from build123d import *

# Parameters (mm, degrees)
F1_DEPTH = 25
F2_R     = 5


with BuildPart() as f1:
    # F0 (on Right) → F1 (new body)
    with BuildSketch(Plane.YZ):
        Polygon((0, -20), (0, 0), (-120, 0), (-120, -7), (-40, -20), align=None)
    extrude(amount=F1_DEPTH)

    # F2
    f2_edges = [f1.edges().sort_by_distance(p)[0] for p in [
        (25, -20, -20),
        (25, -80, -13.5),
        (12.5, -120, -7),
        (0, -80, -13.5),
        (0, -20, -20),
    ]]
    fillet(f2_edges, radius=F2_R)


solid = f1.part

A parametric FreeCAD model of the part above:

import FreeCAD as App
import Part
import Sketcher


def edges_at(feature, points):
    """Names of the edges that pass closest to the given points."""
    edges = feature.Shape.Edges
    near = lambda p: min(range(len(edges)), key=lambda i: edges[i].distToShape(Part.Vertex(*p))[0])
    return sorted({f"Edge{near(p) + 1}" for p in points})


def add_polygon(sketch, points):
    """Adds a closed chain of lines whose ends are joined by coincident constraints."""
    first, n = sketch.GeometryCount, len(points)
    for a, b in zip(points, points[1:] + points[:1]):
        sketch.addGeometry(Part.LineSegment(App.Vector(*a, 0), App.Vector(*b, 0)), False)
    for i in range(n):
        sketch.addConstraint(Sketcher.Constraint("Coincident", first + i, 2, first + (i + 1) % n, 1))

doc = App.newDocument("Part")
body = doc.addObject("PartDesign::Body", "Body")

# Sketch on YZ plane
sketch1 = body.newObject("Sketcher::SketchObject", "Sketch")
sketch1.AttachmentSupport = (doc.getObject("YZ_Plane"), [""])
sketch1.MapMode = "FlatFace"
add_polygon(sketch1, [(0, -20), (0, 0), (-120, 0), (-120, -7), (-40, -20)])  # lines 0-4
sketch1.addConstraint([
    Sketcher.Constraint("Vertical", 0),
    Sketcher.Constraint("Horizontal", 1),
    Sketcher.Constraint("Vertical", 2),
    Sketcher.Constraint("Horizontal", 4),
    Sketcher.Constraint("Coincident", 0, 2, -1, 1),
    Sketcher.Constraint("DistanceX", 1, 2, 1, 1, 120.0),
    Sketcher.Constraint("DistanceX", 4, 1, 4, 2, 40.0),
    Sketcher.Constraint("DistanceY", 0, 1, 0, 2, 20.0),
    Sketcher.Constraint("DistanceY", 2, 2, 2, 1, 7.0),
])
pad1 = body.newObject("PartDesign::Pad", "Pad")
pad1.Profile = sketch1
pad1.Length = 25
doc.recompute()

fillet = body.newObject("PartDesign::Fillet", "Fillet")
fillet.Base = (pad1, edges_at(pad1, [
    (25, -20, -20),
    (25, -80, -13.5),
    (12.5, -120, -7),
    (0, -80, -13.5),
    (0, -20, -20),
]))
fillet.Radius = 5

doc.recompute()
